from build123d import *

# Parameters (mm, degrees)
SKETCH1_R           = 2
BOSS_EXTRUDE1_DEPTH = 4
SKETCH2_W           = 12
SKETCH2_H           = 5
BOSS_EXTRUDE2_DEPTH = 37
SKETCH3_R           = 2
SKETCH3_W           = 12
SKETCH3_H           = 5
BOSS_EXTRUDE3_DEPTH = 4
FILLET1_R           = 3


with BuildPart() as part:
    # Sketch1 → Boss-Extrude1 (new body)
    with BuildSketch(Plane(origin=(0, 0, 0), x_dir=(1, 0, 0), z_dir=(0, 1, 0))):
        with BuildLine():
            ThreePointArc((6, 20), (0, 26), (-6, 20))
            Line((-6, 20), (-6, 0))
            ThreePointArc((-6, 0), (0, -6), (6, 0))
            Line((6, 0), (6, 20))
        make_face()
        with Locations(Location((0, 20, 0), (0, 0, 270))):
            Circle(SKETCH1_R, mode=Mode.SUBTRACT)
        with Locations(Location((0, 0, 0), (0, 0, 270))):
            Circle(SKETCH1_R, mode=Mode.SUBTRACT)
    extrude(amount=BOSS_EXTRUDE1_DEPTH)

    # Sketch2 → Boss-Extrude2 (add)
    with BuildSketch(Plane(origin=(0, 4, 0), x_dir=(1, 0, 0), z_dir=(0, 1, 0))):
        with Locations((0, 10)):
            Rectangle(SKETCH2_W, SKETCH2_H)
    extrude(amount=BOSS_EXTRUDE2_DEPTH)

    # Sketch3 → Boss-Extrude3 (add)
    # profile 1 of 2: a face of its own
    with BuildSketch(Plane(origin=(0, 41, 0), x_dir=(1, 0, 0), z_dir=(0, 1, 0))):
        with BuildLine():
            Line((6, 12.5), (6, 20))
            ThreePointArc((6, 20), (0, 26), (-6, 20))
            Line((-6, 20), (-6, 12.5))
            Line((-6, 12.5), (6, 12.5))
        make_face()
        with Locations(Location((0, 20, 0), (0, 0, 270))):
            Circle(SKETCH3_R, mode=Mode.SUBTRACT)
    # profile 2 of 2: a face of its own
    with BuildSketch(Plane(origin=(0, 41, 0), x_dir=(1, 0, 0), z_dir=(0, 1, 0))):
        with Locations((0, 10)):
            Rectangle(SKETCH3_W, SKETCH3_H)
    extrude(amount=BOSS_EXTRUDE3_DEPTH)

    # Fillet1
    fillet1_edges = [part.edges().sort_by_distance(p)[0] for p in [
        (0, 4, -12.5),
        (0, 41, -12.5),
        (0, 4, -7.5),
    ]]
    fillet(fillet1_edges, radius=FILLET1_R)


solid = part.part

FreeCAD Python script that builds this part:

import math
import FreeCAD as App
import Part
import Sketcher

V = App.Vector


def edges_at(feature, points):
    """Names of the edges that pass closest to the given points."""
    edges = feature.Shape.Edges
    near = lambda p: min(range(len(edges)), key=lambda i: edges[i].distToShape(Part.Vertex(*p))[0])
    return sorted({f"Edge{near(p) + 1}" for p in points})

doc = App.newDocument("Part")
body = doc.addObject("PartDesign::Body", "Body")

# Sketch on XZ plane
sketch1 = doc.addObject("Sketcher::SketchObject", "Sketch")
body.addObject(sketch1)
sketch1.AttachmentSupport = (doc.XZ_Plane, [""])
sketch1.MapMode = "FlatFace"
sketch1.addGeometry([
    Part.ArcOfCircle(Part.Circle(V(0, -20, 0), V(0, 0, 1), 6), math.radians(180), math.radians(360)),  # 0
    Part.LineSegment(V(-6, -20, 0), V(-6, 0, 0)),  # 1
    Part.ArcOfCircle(Part.Circle(V(0, 0, 0), V(0, 0, 1), 6), math.radians(0), math.radians(180)),  # 2
    Part.LineSegment(V(6, 0, 0), V(6, -20, 0)),  # 3
    Part.Circle(V(0, 0, 0), V(0, 0, 1), 2),  # 4
    Part.Circle(V(0, -20, 0), V(0, 0, 1), 2),  # 5
], False)
sketch1.addConstraint([
    Sketcher.Constraint("Tangent", 0, 1, 1, 1),
    Sketcher.Constraint("Tangent", 1, 2, 2, 2),
    Sketcher.Constraint("Tangent", 2, 1, 3, 1),
    Sketcher.Constraint("Tangent", 3, 2, 0, 2),
    Sketcher.Constraint("Vertical", 1),
    Sketcher.Constraint("Vertical", 3),
    Sketcher.Constraint("Coincident", 2, 3, -1, 1),
    Sketcher.Constraint("Coincident", 4, 3, -1, 1),
    Sketcher.Constraint("Coincident", 5, 3, 0, 3),
    Sketcher.Constraint("Equal", 4, 5),
    Sketcher.Constraint("Diameter", 4, 4.0),
    Sketcher.Constraint("Radius", 0, 6.0),
    Sketcher.Constraint("DistanceY", 1, 1, 1, 2, 20.0),
])
pad1 = doc.addObject("PartDesign::Pad", "Pad")
body.addObject(pad1)
pad1.Profile = sketch1
pad1.Length = 4
pad1.Reversed = True

# Sketch on XZ plane
sketch2 = doc.addObject("Sketcher::SketchObject", "Sketch001")
body.addObject(sketch2)
sketch2.AttachmentSupport = (doc.XZ_Plane, [""])
sketch2.MapMode = "FlatFace"
sketch2.AttachmentOffset = App.Placement(V(0, 0, -4), App.Rotation())
sketch2.addGeometry([
    Part.LineSegment(V(-6, -12.5, 0), V(-6, -7.5, 0)),
    Part.LineSegment(V(-6, -7.5, 0), V(6, -7.5, 0)),
    Part.LineSegment(V(6, -7.5, 0), V(6, -12.5, 0)),
    Part.LineSegment(V(6, -12.5, 0), V(-6, -12.5, 0)),
], False)
sketch2.addConstraint([
    Sketcher.Constraint("Coincident", 0, 2, 1, 1),
    Sketcher.Constraint("Coincident", 1, 2, 2, 1),
    Sketcher.Constraint("Coincident", 2, 2, 3, 1),
    Sketcher.Constraint("Coincident", 3, 2, 0, 1),
    Sketcher.Constraint("Vertical", 0),
    Sketcher.Constraint("Horizontal", 1),
    Sketcher.Constraint("Vertical", 2),
    Sketcher.Constraint("Horizontal", 3),
    Sketcher.Constraint("DistanceX", 1, 1, 1, 2, 12.0),
    Sketcher.Constraint("DistanceY", 0, 1, 0, 2, 5.0),
    Sketcher.Constraint("DistanceX", 0, 2, -1, 1, 6.0),
    Sketcher.Constraint("DistanceY", 0, 2, -1, 1, 7.5),
])
pad2 = doc.addObject("PartDesign::Pad", "Pad001")
body.addObject(pad2)
pad2.Profile = sketch2
pad2.Length = 37
pad2.Reversed = True

# Sketch on XZ plane
sketch3 = doc.addObject("Sketcher::SketchObject", "Sketch002")
body.addObject(sketch3)
sketch3.AttachmentSupport = (doc.XZ_Plane, [""])
sketch3.MapMode = "FlatFace"
sketch3.AttachmentOffset = App.Placement(V(0, 0, -41), App.Rotation())
sketch3.addGeometry([
    Part.ArcOfCircle(Part.Circle(V(0, -20, 0), V(0, 0, 1), 6), math.radians(180), math.radians(360)),  # 0
    Part.LineSegment(V(-6, -20, 0), V(-6, -7.5, 0)),  # 1
    Part.LineSegment(V(-6, -7.5, 0), V(6, -7.5, 0)),  # 2
    Part.LineSegment(V(6, -7.5, 0), V(6, -20, 0)),  # 3
    Part.Circle(V(0, -20, 0), V(0, 0, 1), 2),  # 4
], False)
sketch3.addConstraint([
    Sketcher.Constraint("Tangent", 0, 1, 1, 1),
    Sketcher.Constraint("Coincident", 1, 2, 2, 1),
    Sketcher.Constraint("Coincident", 2, 2, 3, 1),
    Sketcher.Constraint("Tangent", 3, 2, 0, 2),
    Sketcher.Constraint("Vertical", 1),
    Sketcher.Constraint("Horizontal", 2),
    Sketcher.Constraint("Vertical", 3),
    Sketcher.Constraint("Coincident", 4, 3, 0, 3),
    Sketcher.Constraint("PointOnObject", 0, 3, -2),
    Sketcher.Constraint("Diameter", 4, 4.0),
    Sketcher.Constraint("Radius", 0, 6.0),
    Sketcher.Constraint("DistanceY", 1, 1, 1, 2, 12.5),
    Sketcher.Constraint("DistanceY", 0, 3, -1, 1, 20.0),
])
pad3 = doc.addObject("PartDesign::Pad", "Pad002")
body.addObject(pad3)
pad3.Profile = sketch3
pad3.Length = 4
pad3.Reversed = True
doc.recompute()

fillet = doc.addObject("PartDesign::Fillet", "Fillet")
body.addObject(fillet)
fillet.Base = (pad3, edges_at(pad3, [(0, 4, -12.5), (0, 41, -12.5), (0, 4, -7.5)]))
fillet.Radius = 3

doc.recompute()
